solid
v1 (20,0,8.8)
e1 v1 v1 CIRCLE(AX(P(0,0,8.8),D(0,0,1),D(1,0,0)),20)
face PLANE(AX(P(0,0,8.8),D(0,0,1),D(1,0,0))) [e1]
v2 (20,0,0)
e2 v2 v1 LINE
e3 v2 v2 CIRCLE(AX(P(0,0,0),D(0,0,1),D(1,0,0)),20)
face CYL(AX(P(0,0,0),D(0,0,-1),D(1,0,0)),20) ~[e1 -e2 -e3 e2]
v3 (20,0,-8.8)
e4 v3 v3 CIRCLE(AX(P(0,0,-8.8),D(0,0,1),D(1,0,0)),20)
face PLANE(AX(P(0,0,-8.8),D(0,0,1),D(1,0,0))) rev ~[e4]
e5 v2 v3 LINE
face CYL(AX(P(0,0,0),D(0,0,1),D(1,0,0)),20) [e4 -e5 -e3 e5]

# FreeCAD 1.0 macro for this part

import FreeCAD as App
import Part
import Sketcher
from FreeCAD import Vector
Q = App.Units.Quantity

doc = App.newDocument("Part")
body = doc.addObject("PartDesign::Body", "Body")

sketch1 = body.newObject("Sketcher::SketchObject", "Sketch")
sketch1.AttachmentSupport = (doc.getObject("XY_Plane"), [""])
sketch1.MapMode = "FlatFace"
sketch1.addGeometry(Part.Circle(Vector(0, 0, 0), Vector(0, 0, 1), 20), False)
sketch1.addConstraint(Sketcher.Constraint("Coincident", 0, 3, -1, 1))
sketch1.addConstraint(Sketcher.Constraint("Diameter", 0, Q("40 mm")))
pad1 = body.newObject("PartDesign::Pad", "Pad")
pad1.Profile = sketch1
pad1.Length = 17.6
pad1.Midplane = True

doc.recompute()
